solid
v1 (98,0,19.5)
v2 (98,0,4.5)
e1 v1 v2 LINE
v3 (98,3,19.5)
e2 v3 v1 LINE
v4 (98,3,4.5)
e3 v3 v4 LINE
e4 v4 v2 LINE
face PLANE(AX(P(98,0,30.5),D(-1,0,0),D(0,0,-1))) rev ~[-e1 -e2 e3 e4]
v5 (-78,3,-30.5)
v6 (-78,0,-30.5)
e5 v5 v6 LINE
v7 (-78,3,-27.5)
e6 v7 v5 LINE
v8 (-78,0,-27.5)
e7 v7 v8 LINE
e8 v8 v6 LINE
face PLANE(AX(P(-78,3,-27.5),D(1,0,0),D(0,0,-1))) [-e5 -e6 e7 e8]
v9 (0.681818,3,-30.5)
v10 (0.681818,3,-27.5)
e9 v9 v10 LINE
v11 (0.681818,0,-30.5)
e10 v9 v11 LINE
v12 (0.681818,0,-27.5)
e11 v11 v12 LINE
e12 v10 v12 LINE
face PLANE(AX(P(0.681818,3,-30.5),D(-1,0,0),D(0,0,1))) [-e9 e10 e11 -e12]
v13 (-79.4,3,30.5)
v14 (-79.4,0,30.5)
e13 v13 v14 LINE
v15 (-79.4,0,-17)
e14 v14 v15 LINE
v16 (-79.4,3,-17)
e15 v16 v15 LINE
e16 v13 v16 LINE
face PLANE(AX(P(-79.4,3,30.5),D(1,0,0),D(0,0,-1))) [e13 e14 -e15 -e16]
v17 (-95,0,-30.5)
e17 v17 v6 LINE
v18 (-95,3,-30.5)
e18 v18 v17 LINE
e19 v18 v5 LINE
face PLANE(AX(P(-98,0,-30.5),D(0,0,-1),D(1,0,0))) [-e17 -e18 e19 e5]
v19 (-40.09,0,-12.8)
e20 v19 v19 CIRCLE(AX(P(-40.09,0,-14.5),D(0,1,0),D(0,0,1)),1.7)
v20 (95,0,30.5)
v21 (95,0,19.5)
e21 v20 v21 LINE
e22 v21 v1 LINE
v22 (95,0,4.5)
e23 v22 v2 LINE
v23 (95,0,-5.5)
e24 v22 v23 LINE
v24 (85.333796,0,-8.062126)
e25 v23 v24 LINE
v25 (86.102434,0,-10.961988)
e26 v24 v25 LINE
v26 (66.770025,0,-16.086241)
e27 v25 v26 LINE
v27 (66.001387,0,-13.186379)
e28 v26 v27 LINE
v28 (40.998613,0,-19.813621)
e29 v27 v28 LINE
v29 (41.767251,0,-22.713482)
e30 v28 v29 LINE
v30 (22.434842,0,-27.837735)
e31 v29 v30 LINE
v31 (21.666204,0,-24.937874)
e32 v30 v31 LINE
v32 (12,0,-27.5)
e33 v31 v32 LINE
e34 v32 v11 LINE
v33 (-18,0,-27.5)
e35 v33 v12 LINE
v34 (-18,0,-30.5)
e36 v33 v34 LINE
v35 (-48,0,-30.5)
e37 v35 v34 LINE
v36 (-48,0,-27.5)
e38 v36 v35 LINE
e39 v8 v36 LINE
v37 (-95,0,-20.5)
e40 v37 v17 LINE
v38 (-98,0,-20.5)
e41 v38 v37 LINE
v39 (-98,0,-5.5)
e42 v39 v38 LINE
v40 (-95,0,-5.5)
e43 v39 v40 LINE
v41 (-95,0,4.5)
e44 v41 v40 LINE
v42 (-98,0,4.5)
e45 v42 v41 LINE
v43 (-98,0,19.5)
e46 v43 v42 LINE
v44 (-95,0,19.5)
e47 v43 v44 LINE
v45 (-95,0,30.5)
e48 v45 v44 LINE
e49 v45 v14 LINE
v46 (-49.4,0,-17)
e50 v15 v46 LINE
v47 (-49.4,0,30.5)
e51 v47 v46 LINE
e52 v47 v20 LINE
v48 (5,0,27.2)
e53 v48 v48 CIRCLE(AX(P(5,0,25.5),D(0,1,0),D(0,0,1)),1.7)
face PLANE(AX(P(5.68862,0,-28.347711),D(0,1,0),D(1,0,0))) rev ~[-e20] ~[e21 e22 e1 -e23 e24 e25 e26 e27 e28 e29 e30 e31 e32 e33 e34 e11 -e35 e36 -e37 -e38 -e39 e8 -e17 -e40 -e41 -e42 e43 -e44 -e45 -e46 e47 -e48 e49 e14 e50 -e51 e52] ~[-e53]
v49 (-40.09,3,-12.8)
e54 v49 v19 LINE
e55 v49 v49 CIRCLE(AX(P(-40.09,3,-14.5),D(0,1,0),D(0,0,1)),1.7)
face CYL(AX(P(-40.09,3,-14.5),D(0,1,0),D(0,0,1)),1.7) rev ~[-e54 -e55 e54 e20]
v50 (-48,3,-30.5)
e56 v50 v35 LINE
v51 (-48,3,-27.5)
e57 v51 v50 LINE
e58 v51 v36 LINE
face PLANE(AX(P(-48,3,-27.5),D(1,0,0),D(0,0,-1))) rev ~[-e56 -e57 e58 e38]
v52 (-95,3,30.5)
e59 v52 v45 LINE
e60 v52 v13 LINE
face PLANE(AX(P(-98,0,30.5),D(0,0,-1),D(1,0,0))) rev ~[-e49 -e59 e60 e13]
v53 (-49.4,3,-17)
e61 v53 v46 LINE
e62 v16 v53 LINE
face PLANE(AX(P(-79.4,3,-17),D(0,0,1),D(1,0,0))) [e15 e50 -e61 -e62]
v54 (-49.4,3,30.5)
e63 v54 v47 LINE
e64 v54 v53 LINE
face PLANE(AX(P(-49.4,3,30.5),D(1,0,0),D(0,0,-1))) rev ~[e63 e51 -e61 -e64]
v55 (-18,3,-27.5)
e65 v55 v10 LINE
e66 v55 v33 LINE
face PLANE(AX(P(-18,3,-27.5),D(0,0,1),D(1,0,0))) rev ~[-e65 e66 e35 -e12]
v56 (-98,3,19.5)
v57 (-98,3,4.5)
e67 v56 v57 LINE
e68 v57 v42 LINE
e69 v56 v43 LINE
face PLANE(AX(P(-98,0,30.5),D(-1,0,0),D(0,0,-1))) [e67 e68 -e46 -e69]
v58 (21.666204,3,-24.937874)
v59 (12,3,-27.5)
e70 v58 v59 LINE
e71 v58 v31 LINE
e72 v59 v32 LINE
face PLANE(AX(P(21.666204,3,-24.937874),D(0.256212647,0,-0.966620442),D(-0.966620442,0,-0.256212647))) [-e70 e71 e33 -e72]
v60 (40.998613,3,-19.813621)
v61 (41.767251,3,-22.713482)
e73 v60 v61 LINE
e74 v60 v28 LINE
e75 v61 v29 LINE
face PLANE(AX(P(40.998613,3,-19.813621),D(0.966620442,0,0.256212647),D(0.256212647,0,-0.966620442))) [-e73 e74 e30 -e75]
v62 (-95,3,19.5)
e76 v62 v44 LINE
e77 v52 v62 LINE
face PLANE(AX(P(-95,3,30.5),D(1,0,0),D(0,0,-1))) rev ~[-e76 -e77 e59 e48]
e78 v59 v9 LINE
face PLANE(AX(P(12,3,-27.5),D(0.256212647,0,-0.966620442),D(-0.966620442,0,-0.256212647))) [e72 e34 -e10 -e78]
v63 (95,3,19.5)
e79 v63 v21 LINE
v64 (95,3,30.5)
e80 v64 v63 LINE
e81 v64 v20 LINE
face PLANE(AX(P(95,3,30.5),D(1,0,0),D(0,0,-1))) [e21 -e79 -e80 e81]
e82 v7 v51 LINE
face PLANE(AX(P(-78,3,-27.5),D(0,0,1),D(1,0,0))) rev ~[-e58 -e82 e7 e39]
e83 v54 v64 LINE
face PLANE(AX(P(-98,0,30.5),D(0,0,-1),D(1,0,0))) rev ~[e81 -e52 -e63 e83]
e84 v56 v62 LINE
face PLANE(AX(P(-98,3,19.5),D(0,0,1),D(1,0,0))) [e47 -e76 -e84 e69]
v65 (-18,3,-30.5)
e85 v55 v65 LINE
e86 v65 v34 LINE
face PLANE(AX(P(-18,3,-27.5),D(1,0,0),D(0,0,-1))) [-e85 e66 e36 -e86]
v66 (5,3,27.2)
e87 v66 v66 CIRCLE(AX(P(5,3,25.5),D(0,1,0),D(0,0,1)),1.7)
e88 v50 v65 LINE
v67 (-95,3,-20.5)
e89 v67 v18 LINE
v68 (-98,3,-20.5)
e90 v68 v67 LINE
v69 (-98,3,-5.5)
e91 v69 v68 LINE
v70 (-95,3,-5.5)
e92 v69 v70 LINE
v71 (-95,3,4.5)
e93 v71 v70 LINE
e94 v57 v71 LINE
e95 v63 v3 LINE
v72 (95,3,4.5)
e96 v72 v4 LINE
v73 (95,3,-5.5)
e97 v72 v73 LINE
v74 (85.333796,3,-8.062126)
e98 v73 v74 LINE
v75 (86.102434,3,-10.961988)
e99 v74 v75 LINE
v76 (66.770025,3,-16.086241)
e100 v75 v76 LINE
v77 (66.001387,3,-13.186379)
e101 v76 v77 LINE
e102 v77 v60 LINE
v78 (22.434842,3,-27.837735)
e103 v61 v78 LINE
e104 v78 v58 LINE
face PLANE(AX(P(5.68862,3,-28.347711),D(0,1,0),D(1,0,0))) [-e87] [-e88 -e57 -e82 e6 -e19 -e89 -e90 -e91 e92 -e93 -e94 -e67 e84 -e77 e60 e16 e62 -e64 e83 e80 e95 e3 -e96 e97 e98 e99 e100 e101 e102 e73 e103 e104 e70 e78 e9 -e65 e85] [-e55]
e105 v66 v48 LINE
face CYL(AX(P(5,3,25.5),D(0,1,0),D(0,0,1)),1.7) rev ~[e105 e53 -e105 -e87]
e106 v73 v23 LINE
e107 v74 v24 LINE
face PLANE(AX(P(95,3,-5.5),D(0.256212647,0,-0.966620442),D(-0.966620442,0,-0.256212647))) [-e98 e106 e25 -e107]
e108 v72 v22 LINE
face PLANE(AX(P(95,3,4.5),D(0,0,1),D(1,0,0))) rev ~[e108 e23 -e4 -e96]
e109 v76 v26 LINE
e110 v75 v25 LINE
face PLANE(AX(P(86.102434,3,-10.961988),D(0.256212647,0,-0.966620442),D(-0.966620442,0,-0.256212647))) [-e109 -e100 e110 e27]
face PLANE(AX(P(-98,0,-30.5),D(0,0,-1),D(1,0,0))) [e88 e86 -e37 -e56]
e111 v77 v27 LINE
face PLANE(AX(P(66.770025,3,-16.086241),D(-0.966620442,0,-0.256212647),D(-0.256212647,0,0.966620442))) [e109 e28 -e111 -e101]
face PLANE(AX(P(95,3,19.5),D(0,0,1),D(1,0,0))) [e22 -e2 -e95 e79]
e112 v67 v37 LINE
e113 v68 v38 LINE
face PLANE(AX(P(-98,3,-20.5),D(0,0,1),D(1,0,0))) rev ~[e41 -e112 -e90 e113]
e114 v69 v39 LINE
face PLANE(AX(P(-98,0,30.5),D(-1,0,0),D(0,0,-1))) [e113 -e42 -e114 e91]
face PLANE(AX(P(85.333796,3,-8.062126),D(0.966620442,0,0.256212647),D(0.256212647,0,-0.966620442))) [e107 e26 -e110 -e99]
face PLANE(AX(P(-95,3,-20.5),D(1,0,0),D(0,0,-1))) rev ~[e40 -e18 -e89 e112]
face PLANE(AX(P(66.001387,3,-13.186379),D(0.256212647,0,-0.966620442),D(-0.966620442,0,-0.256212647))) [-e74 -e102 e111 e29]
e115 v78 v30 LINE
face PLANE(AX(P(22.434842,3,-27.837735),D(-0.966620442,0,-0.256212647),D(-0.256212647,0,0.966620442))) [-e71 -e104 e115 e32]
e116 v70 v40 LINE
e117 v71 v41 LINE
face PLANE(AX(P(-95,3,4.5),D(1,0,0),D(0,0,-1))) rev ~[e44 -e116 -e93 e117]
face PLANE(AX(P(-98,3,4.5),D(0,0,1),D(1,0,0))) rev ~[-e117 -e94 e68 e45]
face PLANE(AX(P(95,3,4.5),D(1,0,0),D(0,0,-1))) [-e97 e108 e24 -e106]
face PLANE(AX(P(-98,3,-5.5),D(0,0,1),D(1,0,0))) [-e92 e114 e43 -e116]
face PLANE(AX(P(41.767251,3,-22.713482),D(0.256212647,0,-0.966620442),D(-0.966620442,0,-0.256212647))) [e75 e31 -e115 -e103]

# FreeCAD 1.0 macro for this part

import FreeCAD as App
import Part
import Sketcher


def add_polygon(sketch, points):
    """Adds a closed chain of lines whose ends are joined by coincident constraints."""
    first, n = sketch.GeometryCount, len(points)
    for a, b in zip(points, points[1:] + points[:1]):
        sketch.addGeometry(Part.LineSegment(App.Vector(*a, 0), App.Vector(*b, 0)), False)
    for i in range(n):
        sketch.addConstraint(Sketcher.Constraint("Coincident", first + i, 2, first + (i + 1) % n, 1))

doc = App.newDocument("Part")
body = doc.addObject("PartDesign::Body", "Body")

sketch1 = body.newObject("Sketcher::SketchObject", "Sketch")
sketch1.AttachmentSupport = (doc.getObject("XZ_Plane"), [""])
sketch1.MapMode = "FlatFace"
add_polygon(sketch1, [(-98, -30), (-98, 30), (98, 30), (98, -30)])
sketch1.addConstraint([
    Sketcher.Constraint("Vertical", 0),
    Sketcher.Constraint("Horizontal", 1),
    Sketcher.Constraint("Vertical", 2),
    Sketcher.Constraint("Horizontal", 3),
    Sketcher.Constraint("Symmetric", 0, 2, 2, 2, -1, 1),
    Sketcher.Constraint("DistanceX", 1, 1, 1, 2, 196.0),
    Sketcher.Constraint("DistanceY", 0, 1, 0, 2, 61.0),
])
pad1 = body.newObject("PartDesign::Pad", "Pad")
pad1.Profile = sketch1
pad1.Length = 3
pad1.Reversed = True

sketch2 = body.newObject("Sketcher::SketchObject", "Sketch001")
sketch2.AttachmentSupport = (doc.getObject("XZ_Plane"), [""])
sketch2.MapMode = "FlatFace"
sketch2.AttachmentOffset = App.Placement(App.Vector(0, 0, -3), App.Rotation())
sketch2.addGeometry(Part.Circle(App.Vector(-40.1, -14.5, 0), App.Vector(0, 0, 1), 1.7), False)
sketch2.addGeometry(Part.Circle(App.Vector(5, 25.5, 0), App.Vector(0, 0, 1), 1.7), False)
add_polygon(sketch2, [(-79.4, -17), (-79.4, 30.5), (-49.4, 30.5), (-49.4, -17)])
add_polygon(sketch2, [(-98, -30.5), (-98, -20.5), (-95, -20.5), (-95, -30.5)])
add_polygon(sketch2, [(-98, -5.5), (-98, 4.5), (-95, 4.5), (-95, -5.5)])
add_polygon(sketch2, [(-98, 19.5), (-98, 30.5), (-95, 30.5), (-95, 19.5)])
add_polygon(sketch2, [(95, -5.5), (95, 4.5), (98, 4.5), (98, -5.5)])
add_polygon(sketch2, [(95, 19.5), (95, 30.5), (98, 30.5), (98, 19.5)])
add_polygon(sketch2, [(-18, -30.5), (-18, -27.5), (12, -27.5), (12, -30.5)])
add_polygon(sketch2, [(-78, -30.5), (-78, -27.5), (-48, -27.5), (-48, -30.5)])
add_polygon(sketch2, [(42, -30.5), (42, -27.5), (72, -27.5), (72, -30.5)])
add_polygon(sketch2, [(95, -30.5), (95, -20.5), (98, -20.5), (98, -30.5)])
sketch2.addConstraint([
    Sketcher.Constraint("Vertical", 2),
    Sketcher.Constraint("Horizontal", 3),
    Sketcher.Constraint("Vertical", 4),
    Sketcher.Constraint("Horizontal", 5),
    Sketcher.Constraint("Vertical", 6),
    Sketcher.Constraint("Horizontal", 7),
    Sketcher.Constraint("Vertical", 8),
    Sketcher.Constraint("Horizontal", 9),
    Sketcher.Constraint("Vertical", 10),
    Sketcher.Constraint("Horizontal", 11),
    Sketcher.Constraint("Vertical", 12),
    Sketcher.Constraint("Horizontal", 13),
    Sketcher.Constraint("Vertical", 14),
    Sketcher.Constraint("Horizontal", 15),
    Sketcher.Constraint("Vertical", 16),
    Sketcher.Constraint("Horizontal", 17),
    Sketcher.Constraint("Vertical", 18),
    Sketcher.Constraint("Horizontal", 19),
    Sketcher.Constraint("Vertical", 20),
    Sketcher.Constraint("Horizontal", 21),
    Sketcher.Constraint("Vertical", 22),
    Sketcher.Constraint("Horizontal", 23),
    Sketcher.Constraint("Vertical", 24),
    Sketcher.Constraint("Horizontal", 25),
    Sketcher.Constraint("Vertical", 26),
    Sketcher.Constraint("Horizontal", 27),
    Sketcher.Constraint("Vertical", 28),
    Sketcher.Constraint("Horizontal", 29),
    Sketcher.Constraint("Vertical", 30),
    Sketcher.Constraint("Horizontal", 31),
    Sketcher.Constraint("Vertical", 32),
    Sketcher.Constraint("Horizontal", 33),
    Sketcher.Constraint("Vertical", 34),
    Sketcher.Constraint("Horizontal", 35),
    Sketcher.Constraint("Vertical", 36),
    Sketcher.Constraint("Horizontal", 37),
    Sketcher.Constraint("Vertical", 38),
    Sketcher.Constraint("Horizontal", 39),
    Sketcher.Constraint("Vertical", 40),
    Sketcher.Constraint("Horizontal", 41),
    Sketcher.Constraint("Equal", 0, 1),
    Sketcher.Constraint("Symmetric", 8, 2, 22, 2, -1, 1),
    Sketcher.Constraint("Symmetric", 14, 2, 40, 2, -1, 1),
    Sketcher.Constraint("Symmetric", 11, 2, 18, 2, -2),
    Sketcher.Constraint("Symmetric", 13, 2, 20, 2, -2),
    Sketcher.Constraint("Symmetric", 15, 2, 22, 2, -2),
    Sketcher.Constraint("Symmetric", 17, 2, 24, 2, -2),
    Sketcher.Constraint("Symmetric", 7, 2, 38, 2, -2),
    Sketcher.Constraint("Horizontal", 3, 2, 14, 2),
    Sketcher.Constraint("Horizontal", 9, 2, 28, 2),
    Sketcher.Constraint("Horizontal", 27, 2, 30, 2),
    Sketcher.Constraint("Horizontal", 29, 2, 32, 2),
    Sketcher.Constraint("Horizontal", 31, 2, 34, 2),
    Sketcher.Constraint("Horizontal", 33, 2, 36, 2),
    Sketcher.Constraint("Vertical", 9, 2, 10, 2),
    Sketcher.Constraint("Vertical", 8, 2, 11, 2),
    Sketcher.Constraint("Vertical", 13, 2, 14, 2),
    Sketcher.Constraint("Equal", 5, 27),
    Sketcher.Constraint("Equal", 29, 31),
    Sketcher.Constraint("Equal", 33, 35),
    Sketcher.Constraint("Equal", 8, 10),
    Sketcher.Constraint("Equal", 41, 26),
    Sketcher.Constraint("Diameter", 0, 3.4),
    Sketcher.Constraint("DistanceX", 3, 1, 3, 2, 30.0),
    Sketcher.Constraint("DistanceX", 7, 1, 7, 2, 3.0),
    Sketcher.Constraint("DistanceY", 6, 1, 6, 2, 10.0),
    Sketcher.Constraint("DistanceY", 14, 1, 14, 2, 11.0),
    Sketcher.Constraint("DistanceY", 2, 1, 2, 2, 47.5),
    Sketcher.Constraint("DistanceX", -1, 1, 1, 3, 5.0),
    Sketcher.Constraint("DistanceY", 4, 2, -1, 1, 17.0),
    Sketcher.Constraint("DistanceX", 6, 2, -1, 1, 98.0),
    Sketcher.Constraint("DistanceX", 26, 2, -1, 1, 18.0),
    Sketcher.Constraint("DistanceX", 30, 2, -1, 1, 78.0),
    Sketcher.Constraint("DistanceX", -1, 1, 34, 2, 42.0),
    Sketcher.Constraint("DistanceY", 0, 3, 1, 3, 40.0),
    Sketcher.Constraint("DistanceY", 0, 3, 2, 2, 45.0),
    Sketcher.Constraint("DistanceY", 6, 2, 10, 2, 25.0),
    Sketcher.Constraint("DistanceX", 2, 2, -1, 1, 79.4),
    Sketcher.Constraint("DistanceX", 0, 3, -1, 1, 40.09),
])
pocket1 = body.newObject("PartDesign::Pocket", "Pocket")
pocket1.Profile = sketch2
pocket1.Length = 3
pocket1.Reversed = True

sketch3 = body.newObject("Sketcher::SketchObject", "Sketch002")
sketch3.AttachmentSupport = (doc.getObject("XZ_Plane"), [""])
sketch3.MapMode = "FlatFace"
sketch3.AttachmentOffset = App.Placement(App.Vector(0, 0, -3), App.Rotation())
add_polygon(sketch3, [(98, -30.5), (12, -30.5), (12, -27.5), (21.7, -24.9), (22.4, -27.8), (41.8, -22.7), (41, -19.8), (66, -13.2), (66.8, -16.1), (86.1, -11), (85.3, -8.1), (95, -5.5), (98, -5.5)])
sketch3.addConstraint([
    Sketcher.Constraint("Horizontal", 0),
    Sketcher.Constraint("Vertical", 1),
    Sketcher.Constraint("Horizontal", 11),
    Sketcher.Constraint("Vertical", 12),
    Sketcher.Constraint("Perpendicular", 2, 3),
    Sketcher.Constraint("Perpendicular", 3, 4),
    Sketcher.Constraint("Perpendicular", 4, 5),
    Sketcher.Constraint("Perpendicular", 5, 6),
    Sketcher.Constraint("Perpendicular", 6, 7),
    Sketcher.Constraint("Perpendicular", 7, 8),
    Sketcher.Constraint("Perpendicular", 8, 9),
    Sketcher.Constraint("Perpendicular", 9, 10),
    Sketcher.Constraint("Equal", 11, 1),
    Sketcher.Constraint("Equal", 3, 5),
    Sketcher.Constraint("Equal", 5, 7),
    Sketcher.Constraint("Equal", 4, 8),
    Sketcher.Constraint("Equal", 7, 9),
    Sketcher.Constraint("Equal", 2, 10),
    Sketcher.Constraint("DistanceX", 0, 2, 0, 1, 86.0),
    Sketcher.Constraint("DistanceX", 11, 1, 11, 2, 3.0),
    Sketcher.Constraint("DistanceY", 12, 2, 12, 1, 25.0),
    Sketcher.Constraint("Distance", 2, 10.0),
    Sketcher.Constraint("Distance", 3, 3.0),
    Sketcher.Constraint("Distance", 4, 20.0),
    Sketcher.Constraint("DistanceX", -1, 1, 0, 2, 12.0),
    Sketcher.Constraint("DistanceY", 0, 2, -1, 1, 30.5),
])
pocket2 = body.newObject("PartDesign::Pocket", "Pocket001")
pocket2.Profile = sketch3
pocket2.Length = 10
pocket2.Reversed = True

sketch4 = body.newObject("Sketcher::SketchObject", "Sketch003")
sketch4.AttachmentSupport = (doc.getObject("XZ_Plane"), [""])
sketch4.MapMode = "FlatFace"
sketch4.AttachmentOffset = App.Placement(App.Vector(0, 0, -3), App.Rotation())
add_polygon(sketch4, [(12, -27.5), (0.7, -30.5), (0.7, -27.5)])
sketch4.addConstraint([
    Sketcher.Constraint("Vertical", 1),
    Sketcher.Constraint("Horizontal", 2),
    Sketcher.Constraint("DistanceY", 1, 1, 1, 2, 3.0),
    Sketcher.Constraint("DistanceX", -1, 1, 2, 2, 12.0),
    Sketcher.Constraint("DistanceY", 0, 2, -1, 1, 30.5),
    Sketcher.Constraint("DistanceX", 2, 1, 2, 2, 11.318182),
])
pad2 = body.newObject("PartDesign::Pad", "Pad001")
pad2.Profile = sketch4
pad2.Length = 3

doc.recompute()
